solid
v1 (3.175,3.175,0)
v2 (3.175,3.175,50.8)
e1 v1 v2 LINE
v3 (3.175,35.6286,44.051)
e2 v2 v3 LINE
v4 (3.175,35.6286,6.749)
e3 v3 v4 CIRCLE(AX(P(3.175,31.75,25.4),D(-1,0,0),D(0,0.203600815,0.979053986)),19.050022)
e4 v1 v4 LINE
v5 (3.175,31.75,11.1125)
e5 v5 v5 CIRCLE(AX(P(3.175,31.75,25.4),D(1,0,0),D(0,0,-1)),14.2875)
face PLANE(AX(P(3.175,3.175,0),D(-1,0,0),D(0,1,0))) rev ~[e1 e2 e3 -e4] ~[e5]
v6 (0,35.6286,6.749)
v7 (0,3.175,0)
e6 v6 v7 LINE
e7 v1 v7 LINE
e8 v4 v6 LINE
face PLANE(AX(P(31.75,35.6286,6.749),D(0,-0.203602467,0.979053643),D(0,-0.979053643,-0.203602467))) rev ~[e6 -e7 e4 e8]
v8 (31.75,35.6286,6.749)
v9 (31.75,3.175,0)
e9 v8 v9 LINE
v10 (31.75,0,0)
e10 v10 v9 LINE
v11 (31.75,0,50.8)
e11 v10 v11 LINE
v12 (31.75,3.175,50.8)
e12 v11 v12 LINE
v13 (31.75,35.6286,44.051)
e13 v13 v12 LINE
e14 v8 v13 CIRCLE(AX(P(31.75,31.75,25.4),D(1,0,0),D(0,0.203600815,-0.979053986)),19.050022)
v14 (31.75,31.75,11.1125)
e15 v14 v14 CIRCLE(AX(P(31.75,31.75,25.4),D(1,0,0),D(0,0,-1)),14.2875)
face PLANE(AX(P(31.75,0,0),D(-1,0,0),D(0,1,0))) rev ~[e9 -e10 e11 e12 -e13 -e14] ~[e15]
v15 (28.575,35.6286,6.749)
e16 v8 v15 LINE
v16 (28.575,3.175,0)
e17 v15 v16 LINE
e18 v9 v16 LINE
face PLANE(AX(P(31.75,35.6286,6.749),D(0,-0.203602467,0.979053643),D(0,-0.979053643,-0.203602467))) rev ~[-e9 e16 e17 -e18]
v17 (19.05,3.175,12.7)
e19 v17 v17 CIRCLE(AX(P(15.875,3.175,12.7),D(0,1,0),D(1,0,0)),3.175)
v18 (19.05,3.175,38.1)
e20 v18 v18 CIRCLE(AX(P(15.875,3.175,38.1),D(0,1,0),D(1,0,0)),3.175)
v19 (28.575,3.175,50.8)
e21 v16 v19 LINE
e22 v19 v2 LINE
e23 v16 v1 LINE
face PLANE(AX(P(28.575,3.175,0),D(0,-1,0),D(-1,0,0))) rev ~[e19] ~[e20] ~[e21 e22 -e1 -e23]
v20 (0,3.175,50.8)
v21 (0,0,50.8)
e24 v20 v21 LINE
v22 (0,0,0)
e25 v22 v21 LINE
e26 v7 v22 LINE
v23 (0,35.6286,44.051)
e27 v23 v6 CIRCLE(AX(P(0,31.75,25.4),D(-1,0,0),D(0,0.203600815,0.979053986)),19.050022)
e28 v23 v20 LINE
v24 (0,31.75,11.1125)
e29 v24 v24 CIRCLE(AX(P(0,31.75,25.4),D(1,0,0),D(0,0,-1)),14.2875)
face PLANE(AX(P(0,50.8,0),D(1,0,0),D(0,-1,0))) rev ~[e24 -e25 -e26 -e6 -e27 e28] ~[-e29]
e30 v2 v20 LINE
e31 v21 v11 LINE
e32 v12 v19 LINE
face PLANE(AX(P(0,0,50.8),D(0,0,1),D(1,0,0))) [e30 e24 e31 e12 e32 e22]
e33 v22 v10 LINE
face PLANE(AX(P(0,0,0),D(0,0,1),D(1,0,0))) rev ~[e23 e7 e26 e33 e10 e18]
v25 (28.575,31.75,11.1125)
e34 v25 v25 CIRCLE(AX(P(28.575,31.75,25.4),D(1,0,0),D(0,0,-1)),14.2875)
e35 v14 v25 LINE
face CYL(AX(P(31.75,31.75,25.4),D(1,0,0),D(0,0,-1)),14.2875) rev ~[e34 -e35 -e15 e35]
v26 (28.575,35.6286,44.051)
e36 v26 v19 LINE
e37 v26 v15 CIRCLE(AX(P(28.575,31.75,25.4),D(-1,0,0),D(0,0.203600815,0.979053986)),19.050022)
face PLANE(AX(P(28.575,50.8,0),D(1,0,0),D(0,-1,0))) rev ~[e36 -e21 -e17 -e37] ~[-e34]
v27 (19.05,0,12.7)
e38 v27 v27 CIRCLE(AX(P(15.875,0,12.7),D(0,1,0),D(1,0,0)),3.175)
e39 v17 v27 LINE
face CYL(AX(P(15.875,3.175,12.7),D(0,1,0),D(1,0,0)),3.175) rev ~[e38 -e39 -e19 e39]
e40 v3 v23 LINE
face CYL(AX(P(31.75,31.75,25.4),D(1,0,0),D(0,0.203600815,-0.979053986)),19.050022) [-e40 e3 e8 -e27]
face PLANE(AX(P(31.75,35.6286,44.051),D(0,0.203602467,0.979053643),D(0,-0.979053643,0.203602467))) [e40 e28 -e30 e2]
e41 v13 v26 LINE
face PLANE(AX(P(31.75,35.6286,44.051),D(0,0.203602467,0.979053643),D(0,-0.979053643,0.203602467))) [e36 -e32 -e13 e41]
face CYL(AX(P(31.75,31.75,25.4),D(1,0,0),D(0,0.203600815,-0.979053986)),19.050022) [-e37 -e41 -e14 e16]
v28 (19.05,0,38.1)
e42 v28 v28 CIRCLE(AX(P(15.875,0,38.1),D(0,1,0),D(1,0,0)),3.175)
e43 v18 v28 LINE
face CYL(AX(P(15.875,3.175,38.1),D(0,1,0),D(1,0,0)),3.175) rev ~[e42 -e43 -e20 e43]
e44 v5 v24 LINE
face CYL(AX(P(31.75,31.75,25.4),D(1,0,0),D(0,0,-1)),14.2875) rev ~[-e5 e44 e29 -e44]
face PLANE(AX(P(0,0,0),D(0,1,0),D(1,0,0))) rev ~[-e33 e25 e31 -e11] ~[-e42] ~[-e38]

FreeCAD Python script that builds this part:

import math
import FreeCAD as App
import Part
import Sketcher

V = App.Vector
Q = App.Units.Quantity


def add_polygon(sketch, points):
    """Adds a closed chain of lines whose ends are joined by coincident constraints."""
    first, n = sketch.GeometryCount, len(points)
    for a, b in zip(points, points[1:] + points[:1]):
        sketch.addGeometry(Part.LineSegment(App.Vector(*a, 0), App.Vector(*b, 0)), False)
    for i in range(n):
        sketch.addConstraint(Sketcher.Constraint("Coincident", first + i, 2, first + (i + 1) % n, 1))

doc = App.newDocument("Part")
body = doc.addObject("PartDesign::Body", "Body")

# Sketch on XY plane
sketch1 = doc.addObject("Sketcher::SketchObject", "Sketch")
body.addObject(sketch1)
sketch1.AttachmentSupport = (doc.XY_Plane, [""])
sketch1.MapMode = "FlatFace"
add_polygon(sketch1, [(0, 50.8), (0, 0), (31.75, 0), (31.75, 50.8), (28.575, 50.8), (28.575, 3.175), (3.175, 3.175), (3.175, 50.8)])  # lines 0-7
sketch1.addConstraint([
    Sketcher.Constraint("Vertical", 0),
    Sketcher.Constraint("Horizontal", 1),
    Sketcher.Constraint("Vertical", 2),
    Sketcher.Constraint("Horizontal", 3),
    Sketcher.Constraint("Vertical", 4),
    Sketcher.Constraint("Horizontal", 5),
    Sketcher.Constraint("Vertical", 6),
    Sketcher.Constraint("Horizontal", 7),
    Sketcher.Constraint("Coincident", 0, 2, -1, 1),
    Sketcher.Constraint("Horizontal", 3, 2, 6, 2),
    Sketcher.Constraint("Equal", 3, 7),
    Sketcher.Constraint("DistanceY", 0, 2, 0, 1, Q("2 in")),
    Sketcher.Constraint("DistanceX", 1, 1, 1, 2, Q("1.25 in")),
    Sketcher.Constraint("DistanceX", 3, 2, 3, 1, Q("0.125 in")),
    Sketcher.Constraint("DistanceY", -1, 1, 4, 2, Q("0.125 in")),
])
pad1 = doc.addObject("PartDesign::Pad", "Pad")
body.addObject(pad1)
pad1.Profile = sketch1
pad1.Length = Q("2 in")

# Sketch on YZ plane
sketch2 = doc.addObject("Sketcher::SketchObject", "Sketch001")
body.addObject(sketch2)
sketch2.AttachmentSupport = (doc.YZ_Plane, [""])
sketch2.MapMode = "FlatFace"
sketch2.AttachmentOffset = App.Placement(V(0, 0, 1.25 * 25.4), App.Rotation())
sketch2.addGeometry([
    Part.LineSegment(V(50.8, 25.4, 0), V(50.8, 50.8, 0)),  # 0
    Part.LineSegment(V(50.8, 50.8, 0), V(3.175, 50.8, 0)),  # 1
    Part.LineSegment(V(3.175, 50.8, 0), V(35.6286, 44.051, 0)),  # 2
    Part.ArcOfCircle(Part.Circle(V(31.75, 25.4, 0), V(0, 0, 1), 19.050022), math.radians(0), math.radians(78.252396)),  # 3
    Part.LineSegment(V(50.8, 0, 0), V(50.8, 25.4, 0)),  # 4
    Part.ArcOfCircle(Part.Circle(V(31.75, 25.4, 0), V(0, 0, 1), 19.050022), math.radians(-78.252396), math.radians(0)),  # 5
    Part.LineSegment(V(35.6286, 6.749, 0), V(3.175, 0, 0)),  # 6
    Part.LineSegment(V(3.175, 0, 0), V(50.8, 0, 0)),  # 7
    Part.Circle(V(31.75, 25.4, 0), V(0, 0, 1), 14.2875),  # 8
], False)
sketch2.addConstraint([
    Sketcher.Constraint("Coincident", 0, 2, 1, 1),
    Sketcher.Constraint("Coincident", 1, 2, 2, 1),
    Sketcher.Constraint("Tangent", 2, 2, 3, 2),
    Sketcher.Constraint("Tangent", 3, 1, 0, 1),
    Sketcher.Constraint("Tangent", 4, 2, 5, 2),
    Sketcher.Constraint("Tangent", 5, 1, 6, 1),
    Sketcher.Constraint("Coincident", 6, 2, 7, 1),
    Sketcher.Constraint("Coincident", 7, 2, 4, 1),
    Sketcher.Constraint("Vertical", 0),
    Sketcher.Constraint("Horizontal", 1),
    Sketcher.Constraint("Vertical", 4),
    Sketcher.Constraint("Horizontal", 7),
    Sketcher.Constraint("Coincident", 5, 3, 3, 3),
    Sketcher.Constraint("Coincident", 8, 3, 3, 3),
    Sketcher.Constraint("Equal", 3, 5),
    Sketcher.Constraint("PointOnObject", 6, 2, -1),
    Sketcher.Constraint("Vertical", 2, 2, 5, 1),
    Sketcher.Constraint("Vertical", 1, 2, 6, 2),
    Sketcher.Constraint("DistanceY", 0, 1, 0, 2, Q("1 in")),
    Sketcher.Constraint("Radius", 3, Q("0.75 in")),
    Sketcher.Constraint("Diameter", 8, Q("1.125 in")),
    Sketcher.Constraint("DistanceX", -1, 1, 0, 2, Q("2 in")),
    Sketcher.Constraint("DistanceX", 1, 2, 3, 3, Q("1.125 in")),
])
pocket1 = doc.addObject("PartDesign::Pocket", "Pocket")
body.addObject(pocket1)
pocket1.Profile = sketch2
pocket1.Length = Q("2 in")

# Sketch on XZ plane
sketch3 = doc.addObject("Sketcher::SketchObject", "Sketch002")
body.addObject(sketch3)
sketch3.AttachmentSupport = (doc.XZ_Plane, [""])
sketch3.MapMode = "FlatFace"
sketch3.AttachmentOffset = App.Placement(V(0, 0, -0.125 * 25.4), App.Rotation())
sketch3.addGeometry([
    Part.Circle(V(15.875, 12.7, 0), V(0, 0, 1), 3.175),
    Part.Circle(V(15.875, 38.1, 0), V(0, 0, 1), 3.175),
], False)
sketch3.addConstraint([
    Sketcher.Constraint("Equal", 0, 1),
    Sketcher.Constraint("Vertical", 0, 3, 1, 3),
    Sketcher.Constraint("Diameter", 0, Q("0.25 in")),
    Sketcher.Constraint("DistanceY", 0, 3, 1, 3, Q("1 in")),
    Sketcher.Constraint("DistanceY", -1, 1, 0, 3, Q("0.5 in")),
    Sketcher.Constraint("DistanceX", -1, 1, 0, 3, Q("0.625 in")),
])
pocket2 = doc.addObject("PartDesign::Pocket", "Pocket001")
body.addObject(pocket2)
pocket2.Profile = sketch3
pocket2.Length = Q("2 in")
pocket2.Reversed = True

doc.recompute()
